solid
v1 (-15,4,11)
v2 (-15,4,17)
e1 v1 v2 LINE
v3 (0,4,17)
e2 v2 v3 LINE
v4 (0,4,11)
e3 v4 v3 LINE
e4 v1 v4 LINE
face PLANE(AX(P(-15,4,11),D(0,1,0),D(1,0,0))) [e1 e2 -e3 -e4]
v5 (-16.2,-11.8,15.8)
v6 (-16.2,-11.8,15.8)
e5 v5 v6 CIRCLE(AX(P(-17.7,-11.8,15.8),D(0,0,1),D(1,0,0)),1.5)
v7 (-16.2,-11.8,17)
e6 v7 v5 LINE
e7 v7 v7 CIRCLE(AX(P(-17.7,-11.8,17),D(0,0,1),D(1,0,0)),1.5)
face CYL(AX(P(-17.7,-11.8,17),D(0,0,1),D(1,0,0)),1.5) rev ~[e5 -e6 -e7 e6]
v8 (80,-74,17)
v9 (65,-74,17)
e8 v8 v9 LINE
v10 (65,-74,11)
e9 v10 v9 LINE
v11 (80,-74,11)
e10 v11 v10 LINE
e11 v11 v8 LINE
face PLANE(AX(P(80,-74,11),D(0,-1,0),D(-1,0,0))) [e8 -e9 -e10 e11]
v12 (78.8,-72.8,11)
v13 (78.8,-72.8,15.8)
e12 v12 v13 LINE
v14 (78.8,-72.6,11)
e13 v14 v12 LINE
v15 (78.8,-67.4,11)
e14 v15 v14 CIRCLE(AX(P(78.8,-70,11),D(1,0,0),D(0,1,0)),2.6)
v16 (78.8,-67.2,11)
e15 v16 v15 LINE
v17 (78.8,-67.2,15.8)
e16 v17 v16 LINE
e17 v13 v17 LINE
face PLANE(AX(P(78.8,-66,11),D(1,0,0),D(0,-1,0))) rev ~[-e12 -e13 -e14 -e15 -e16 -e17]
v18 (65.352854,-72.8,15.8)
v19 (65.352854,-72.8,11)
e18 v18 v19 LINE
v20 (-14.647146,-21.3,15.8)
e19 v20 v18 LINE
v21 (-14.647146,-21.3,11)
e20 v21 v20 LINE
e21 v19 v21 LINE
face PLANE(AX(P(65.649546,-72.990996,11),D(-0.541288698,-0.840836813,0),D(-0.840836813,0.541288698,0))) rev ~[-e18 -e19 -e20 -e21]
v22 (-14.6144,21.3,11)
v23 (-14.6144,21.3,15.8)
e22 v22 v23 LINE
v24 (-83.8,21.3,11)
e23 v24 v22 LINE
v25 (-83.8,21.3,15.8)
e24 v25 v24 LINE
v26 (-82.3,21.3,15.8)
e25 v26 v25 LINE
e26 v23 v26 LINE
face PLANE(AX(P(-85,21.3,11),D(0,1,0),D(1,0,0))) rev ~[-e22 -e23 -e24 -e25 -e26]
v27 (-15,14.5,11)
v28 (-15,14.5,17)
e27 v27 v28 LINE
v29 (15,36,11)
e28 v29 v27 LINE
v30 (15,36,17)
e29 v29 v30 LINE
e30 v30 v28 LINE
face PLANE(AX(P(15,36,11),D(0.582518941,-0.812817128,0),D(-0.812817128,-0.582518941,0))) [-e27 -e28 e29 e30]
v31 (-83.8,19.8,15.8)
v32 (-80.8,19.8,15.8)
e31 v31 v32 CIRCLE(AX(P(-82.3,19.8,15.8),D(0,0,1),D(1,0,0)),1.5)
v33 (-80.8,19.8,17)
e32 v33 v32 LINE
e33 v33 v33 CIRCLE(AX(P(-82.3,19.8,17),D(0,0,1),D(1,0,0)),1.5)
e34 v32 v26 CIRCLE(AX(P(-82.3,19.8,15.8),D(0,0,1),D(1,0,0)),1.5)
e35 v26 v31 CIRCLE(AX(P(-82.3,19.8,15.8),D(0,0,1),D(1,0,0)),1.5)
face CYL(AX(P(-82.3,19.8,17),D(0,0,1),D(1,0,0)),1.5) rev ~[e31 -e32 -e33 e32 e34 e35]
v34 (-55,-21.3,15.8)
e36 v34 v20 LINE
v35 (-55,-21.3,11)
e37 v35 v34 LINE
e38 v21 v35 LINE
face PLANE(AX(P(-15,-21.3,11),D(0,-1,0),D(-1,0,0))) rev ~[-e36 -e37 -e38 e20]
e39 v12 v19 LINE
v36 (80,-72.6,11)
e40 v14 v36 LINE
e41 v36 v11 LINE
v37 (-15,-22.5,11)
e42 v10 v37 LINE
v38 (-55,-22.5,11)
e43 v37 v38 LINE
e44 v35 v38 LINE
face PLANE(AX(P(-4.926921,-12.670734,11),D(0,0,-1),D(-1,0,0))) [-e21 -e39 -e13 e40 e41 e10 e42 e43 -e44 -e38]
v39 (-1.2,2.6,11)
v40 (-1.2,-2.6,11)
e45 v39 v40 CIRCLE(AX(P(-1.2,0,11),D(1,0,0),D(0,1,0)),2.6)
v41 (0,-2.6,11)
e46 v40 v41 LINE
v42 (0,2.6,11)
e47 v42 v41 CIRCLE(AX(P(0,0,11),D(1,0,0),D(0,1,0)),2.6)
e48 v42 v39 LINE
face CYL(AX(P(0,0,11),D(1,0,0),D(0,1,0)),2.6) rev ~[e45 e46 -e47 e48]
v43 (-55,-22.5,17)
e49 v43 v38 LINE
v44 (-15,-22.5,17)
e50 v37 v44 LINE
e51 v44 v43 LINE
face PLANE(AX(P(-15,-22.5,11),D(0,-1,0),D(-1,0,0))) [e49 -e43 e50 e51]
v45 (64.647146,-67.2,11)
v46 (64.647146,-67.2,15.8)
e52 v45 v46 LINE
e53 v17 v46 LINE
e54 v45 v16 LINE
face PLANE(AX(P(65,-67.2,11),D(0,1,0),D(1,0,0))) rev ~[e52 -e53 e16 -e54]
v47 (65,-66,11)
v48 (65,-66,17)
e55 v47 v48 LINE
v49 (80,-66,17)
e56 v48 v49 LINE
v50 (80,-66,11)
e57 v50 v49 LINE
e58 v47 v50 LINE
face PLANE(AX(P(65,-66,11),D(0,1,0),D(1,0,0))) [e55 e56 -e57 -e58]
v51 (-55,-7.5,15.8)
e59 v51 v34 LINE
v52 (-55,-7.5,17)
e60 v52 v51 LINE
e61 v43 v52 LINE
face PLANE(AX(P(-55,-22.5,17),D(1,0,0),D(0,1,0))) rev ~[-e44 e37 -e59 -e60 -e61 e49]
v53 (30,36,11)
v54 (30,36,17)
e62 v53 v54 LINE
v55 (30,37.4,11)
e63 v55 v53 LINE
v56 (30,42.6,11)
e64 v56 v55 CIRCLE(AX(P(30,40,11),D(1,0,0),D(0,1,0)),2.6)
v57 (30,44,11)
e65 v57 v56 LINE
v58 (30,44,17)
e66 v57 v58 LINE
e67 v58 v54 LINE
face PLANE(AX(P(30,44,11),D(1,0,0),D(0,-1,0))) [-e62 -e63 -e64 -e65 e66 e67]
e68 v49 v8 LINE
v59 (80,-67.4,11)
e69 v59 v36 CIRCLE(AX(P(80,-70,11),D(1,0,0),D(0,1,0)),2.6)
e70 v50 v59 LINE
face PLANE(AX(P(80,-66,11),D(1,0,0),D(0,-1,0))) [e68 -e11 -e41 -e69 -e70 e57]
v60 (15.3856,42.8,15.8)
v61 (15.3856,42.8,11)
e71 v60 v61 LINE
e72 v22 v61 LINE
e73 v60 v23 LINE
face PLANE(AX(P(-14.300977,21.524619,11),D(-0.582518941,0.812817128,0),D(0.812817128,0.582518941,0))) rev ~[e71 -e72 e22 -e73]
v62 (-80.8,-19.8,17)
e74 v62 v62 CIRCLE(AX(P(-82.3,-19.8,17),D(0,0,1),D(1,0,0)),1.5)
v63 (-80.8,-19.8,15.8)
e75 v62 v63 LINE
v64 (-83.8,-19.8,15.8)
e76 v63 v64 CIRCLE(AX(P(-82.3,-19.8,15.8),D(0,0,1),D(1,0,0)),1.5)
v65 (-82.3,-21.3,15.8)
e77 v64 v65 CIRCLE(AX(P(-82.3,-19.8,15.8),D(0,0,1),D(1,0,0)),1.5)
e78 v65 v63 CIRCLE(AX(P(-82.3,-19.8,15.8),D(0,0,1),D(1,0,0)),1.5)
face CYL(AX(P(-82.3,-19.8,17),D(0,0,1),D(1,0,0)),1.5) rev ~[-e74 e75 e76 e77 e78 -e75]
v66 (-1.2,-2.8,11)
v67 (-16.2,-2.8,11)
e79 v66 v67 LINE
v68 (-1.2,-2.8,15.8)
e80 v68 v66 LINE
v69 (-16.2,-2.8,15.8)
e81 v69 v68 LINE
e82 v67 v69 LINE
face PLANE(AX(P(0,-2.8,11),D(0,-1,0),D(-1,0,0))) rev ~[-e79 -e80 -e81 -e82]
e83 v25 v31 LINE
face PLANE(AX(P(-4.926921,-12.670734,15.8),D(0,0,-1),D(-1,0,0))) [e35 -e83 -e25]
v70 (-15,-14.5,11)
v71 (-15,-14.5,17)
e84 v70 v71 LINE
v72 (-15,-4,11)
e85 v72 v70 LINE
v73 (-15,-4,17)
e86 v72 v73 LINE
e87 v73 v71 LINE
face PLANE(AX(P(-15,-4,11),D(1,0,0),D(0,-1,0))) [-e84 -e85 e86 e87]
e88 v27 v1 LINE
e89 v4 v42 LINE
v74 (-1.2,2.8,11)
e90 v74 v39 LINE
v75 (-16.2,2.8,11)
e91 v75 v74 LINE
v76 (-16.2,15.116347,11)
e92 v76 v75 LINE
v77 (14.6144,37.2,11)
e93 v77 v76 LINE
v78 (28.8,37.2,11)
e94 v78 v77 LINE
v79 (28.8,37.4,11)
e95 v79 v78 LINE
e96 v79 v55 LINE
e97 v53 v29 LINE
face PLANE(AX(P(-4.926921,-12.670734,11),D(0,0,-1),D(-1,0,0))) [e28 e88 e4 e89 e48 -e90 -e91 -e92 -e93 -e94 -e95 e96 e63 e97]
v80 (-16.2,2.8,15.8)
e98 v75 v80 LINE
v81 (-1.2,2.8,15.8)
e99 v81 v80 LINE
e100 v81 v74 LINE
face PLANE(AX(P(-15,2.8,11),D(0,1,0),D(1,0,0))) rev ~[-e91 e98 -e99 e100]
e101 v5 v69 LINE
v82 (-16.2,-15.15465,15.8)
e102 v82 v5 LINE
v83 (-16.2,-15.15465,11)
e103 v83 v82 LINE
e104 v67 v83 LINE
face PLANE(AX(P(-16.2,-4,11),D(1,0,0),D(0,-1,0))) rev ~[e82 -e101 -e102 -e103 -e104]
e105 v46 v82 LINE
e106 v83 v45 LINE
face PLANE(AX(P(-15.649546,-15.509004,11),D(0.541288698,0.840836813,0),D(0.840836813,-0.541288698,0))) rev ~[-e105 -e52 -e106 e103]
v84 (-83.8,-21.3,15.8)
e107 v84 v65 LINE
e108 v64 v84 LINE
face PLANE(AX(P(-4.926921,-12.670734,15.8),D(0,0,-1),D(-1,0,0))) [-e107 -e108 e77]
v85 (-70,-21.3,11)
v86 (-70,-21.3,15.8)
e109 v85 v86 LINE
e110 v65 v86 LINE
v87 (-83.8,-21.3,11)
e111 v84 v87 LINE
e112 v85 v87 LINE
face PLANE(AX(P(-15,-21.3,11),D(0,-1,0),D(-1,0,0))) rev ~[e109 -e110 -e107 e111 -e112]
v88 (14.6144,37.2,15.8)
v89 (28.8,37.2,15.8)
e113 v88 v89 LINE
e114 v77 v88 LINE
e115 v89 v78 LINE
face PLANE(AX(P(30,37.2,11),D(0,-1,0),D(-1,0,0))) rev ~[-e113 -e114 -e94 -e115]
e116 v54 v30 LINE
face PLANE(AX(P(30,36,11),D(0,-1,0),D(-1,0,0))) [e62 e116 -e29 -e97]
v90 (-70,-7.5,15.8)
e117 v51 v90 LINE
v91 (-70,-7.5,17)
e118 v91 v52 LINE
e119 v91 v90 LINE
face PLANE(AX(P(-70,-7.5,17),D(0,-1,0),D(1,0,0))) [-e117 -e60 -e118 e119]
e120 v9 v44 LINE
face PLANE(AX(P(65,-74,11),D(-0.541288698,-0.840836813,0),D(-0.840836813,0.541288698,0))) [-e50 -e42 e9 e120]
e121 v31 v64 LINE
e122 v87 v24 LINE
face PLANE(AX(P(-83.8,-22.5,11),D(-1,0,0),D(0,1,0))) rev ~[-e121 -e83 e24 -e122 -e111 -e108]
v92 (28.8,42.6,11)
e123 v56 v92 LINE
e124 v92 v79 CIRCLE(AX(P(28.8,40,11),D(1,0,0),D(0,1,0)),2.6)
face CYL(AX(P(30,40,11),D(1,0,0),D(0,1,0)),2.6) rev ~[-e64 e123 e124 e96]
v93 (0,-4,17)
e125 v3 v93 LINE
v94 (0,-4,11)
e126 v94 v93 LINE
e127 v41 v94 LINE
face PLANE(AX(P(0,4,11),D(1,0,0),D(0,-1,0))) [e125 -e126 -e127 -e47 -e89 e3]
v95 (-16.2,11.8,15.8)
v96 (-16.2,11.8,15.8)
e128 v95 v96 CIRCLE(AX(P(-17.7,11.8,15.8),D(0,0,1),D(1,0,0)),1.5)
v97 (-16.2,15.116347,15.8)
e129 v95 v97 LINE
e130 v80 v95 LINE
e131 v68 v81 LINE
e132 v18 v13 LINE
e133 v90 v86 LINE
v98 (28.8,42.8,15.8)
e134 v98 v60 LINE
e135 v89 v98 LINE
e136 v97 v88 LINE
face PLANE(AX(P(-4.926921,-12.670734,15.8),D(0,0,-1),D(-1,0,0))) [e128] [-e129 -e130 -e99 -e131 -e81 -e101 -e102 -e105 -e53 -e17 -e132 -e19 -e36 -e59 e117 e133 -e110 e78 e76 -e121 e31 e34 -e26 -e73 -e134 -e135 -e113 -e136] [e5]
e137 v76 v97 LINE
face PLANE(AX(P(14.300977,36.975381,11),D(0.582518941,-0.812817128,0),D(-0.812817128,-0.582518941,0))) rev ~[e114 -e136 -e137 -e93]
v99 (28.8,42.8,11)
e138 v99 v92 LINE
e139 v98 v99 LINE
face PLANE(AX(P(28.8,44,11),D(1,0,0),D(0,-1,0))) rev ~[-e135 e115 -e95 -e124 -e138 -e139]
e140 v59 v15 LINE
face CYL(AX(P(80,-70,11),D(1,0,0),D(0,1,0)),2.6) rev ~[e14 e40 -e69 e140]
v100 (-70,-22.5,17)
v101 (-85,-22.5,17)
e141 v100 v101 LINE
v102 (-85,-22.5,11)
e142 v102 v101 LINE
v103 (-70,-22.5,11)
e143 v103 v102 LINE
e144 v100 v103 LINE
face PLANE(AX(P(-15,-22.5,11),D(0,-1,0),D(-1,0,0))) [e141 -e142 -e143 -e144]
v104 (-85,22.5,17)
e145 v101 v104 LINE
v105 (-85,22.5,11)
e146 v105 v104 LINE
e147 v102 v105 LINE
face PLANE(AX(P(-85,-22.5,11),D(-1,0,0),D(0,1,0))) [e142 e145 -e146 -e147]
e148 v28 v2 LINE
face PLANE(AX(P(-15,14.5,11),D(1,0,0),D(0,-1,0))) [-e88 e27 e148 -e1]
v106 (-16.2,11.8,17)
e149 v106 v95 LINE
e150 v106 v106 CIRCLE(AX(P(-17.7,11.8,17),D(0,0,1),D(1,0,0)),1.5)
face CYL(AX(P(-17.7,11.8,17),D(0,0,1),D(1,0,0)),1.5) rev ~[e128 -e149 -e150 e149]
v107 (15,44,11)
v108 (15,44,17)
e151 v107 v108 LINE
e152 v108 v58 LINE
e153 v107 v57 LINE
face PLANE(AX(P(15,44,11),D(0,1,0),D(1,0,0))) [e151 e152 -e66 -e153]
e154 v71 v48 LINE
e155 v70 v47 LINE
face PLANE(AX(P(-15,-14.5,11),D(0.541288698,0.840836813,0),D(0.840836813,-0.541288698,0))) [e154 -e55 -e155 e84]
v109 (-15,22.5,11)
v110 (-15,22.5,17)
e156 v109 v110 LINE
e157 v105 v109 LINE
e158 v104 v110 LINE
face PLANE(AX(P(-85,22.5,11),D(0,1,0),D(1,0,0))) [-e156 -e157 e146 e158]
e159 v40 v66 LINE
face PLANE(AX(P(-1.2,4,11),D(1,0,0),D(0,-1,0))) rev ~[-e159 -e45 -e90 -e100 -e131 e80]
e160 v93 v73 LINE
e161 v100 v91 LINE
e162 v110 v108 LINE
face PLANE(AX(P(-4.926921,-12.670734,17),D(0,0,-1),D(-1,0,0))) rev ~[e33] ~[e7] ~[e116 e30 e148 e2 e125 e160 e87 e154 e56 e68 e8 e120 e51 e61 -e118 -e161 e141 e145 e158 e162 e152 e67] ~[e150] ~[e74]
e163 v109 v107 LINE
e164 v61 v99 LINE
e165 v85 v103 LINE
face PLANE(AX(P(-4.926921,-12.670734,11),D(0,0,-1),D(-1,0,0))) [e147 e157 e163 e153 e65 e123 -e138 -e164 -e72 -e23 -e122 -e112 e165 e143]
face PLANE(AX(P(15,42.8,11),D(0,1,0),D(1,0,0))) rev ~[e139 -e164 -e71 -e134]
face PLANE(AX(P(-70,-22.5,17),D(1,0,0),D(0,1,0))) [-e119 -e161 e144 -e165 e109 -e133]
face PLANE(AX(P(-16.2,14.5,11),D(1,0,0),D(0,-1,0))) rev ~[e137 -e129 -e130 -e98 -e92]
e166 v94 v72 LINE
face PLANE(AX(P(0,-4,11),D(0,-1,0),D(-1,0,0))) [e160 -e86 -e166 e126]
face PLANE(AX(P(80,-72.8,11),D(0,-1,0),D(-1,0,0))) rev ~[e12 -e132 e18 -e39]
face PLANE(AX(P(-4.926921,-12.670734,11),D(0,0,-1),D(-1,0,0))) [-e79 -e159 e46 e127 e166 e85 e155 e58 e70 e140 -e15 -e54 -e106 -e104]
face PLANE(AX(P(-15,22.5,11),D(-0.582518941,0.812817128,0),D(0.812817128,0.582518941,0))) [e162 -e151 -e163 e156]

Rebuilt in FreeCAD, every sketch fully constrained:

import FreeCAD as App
import Part
import Sketcher

V = App.Vector
Q = App.Units.Quantity


def faces_at(feature, points):
    """Names of the faces that lie closest to the given points."""
    faces = feature.Shape.Faces
    near = lambda p: min(range(len(faces)), key=lambda i: faces[i].distToShape(Part.Vertex(*p))[0])
    return sorted({f"Face{near(p) + 1}" for p in points})

doc = App.newDocument("Part")
body = doc.addObject("PartDesign::Body", "Body")

# Sketch on XY plane
sketch1 = body.newObject("Sketcher::SketchObject", "Sketch")
sketch1.AttachmentSupport = (doc.getObject("XY_Plane"), [""])
sketch1.MapMode = "FlatFace"
sketch1.addGeometry([
    Part.LineSegment(V(65, -74, 0), V(80, -74, 0)),  # 0
    Part.LineSegment(V(80, -74, 0), V(80, -66, 0)),  # 1
    Part.LineSegment(V(80, -66, 0), V(65, -66, 0)),  # 2
    Part.LineSegment(V(65, -66, 0), V(-15, -14.5, 0)),  # 3
    Part.LineSegment(V(-15, -14.5, 0), V(-15, -4, 0)),  # 4
    Part.LineSegment(V(-15, -4, 0), V(0, -4, 0)),  # 5
    Part.LineSegment(V(0, -4, 0), V(0, 4, 0)),  # 6
    Part.LineSegment(V(0, 4, 0), V(-15, 4, 0)),  # 7
    Part.LineSegment(V(-15, 4, 0), V(-15, 14.5, 0)),  # 8
    Part.LineSegment(V(-15, 14.5, 0), V(15, 36, 0)),  # 9
    Part.LineSegment(V(15, 36, 0), V(30, 36, 0)),  # 10
    Part.LineSegment(V(30, 36, 0), V(30, 44, 0)),  # 11
    Part.LineSegment(V(30, 44, 0), V(15, 44, 0)),  # 12
    Part.LineSegment(V(15, 44, 0), V(-15, 22.5, 0)),  # 13
    Part.LineSegment(V(-15, 22.5, 0), V(-85, 22.5, 0)),  # 14
    Part.LineSegment(V(-85, 22.5, 0), V(-85, -22.5, 0)),  # 15
    Part.LineSegment(V(-85, -22.5, 0), V(-15, -22.5, 0)),  # 16
    Part.LineSegment(V(-15, -22.5, 0), V(65, -74, 0)),  # 17
], False)
sketch1.addConstraint([
    Sketcher.Constraint("Coincident", 0, 2, 1, 1),
    Sketcher.Constraint("Coincident", 1, 2, 2, 1),
    Sketcher.Constraint("Coincident", 2, 2, 3, 1),
    Sketcher.Constraint("Coincident", 3, 2, 4, 1),
    Sketcher.Constraint("Coincident", 4, 2, 5, 1),
    Sketcher.Constraint("Coincident", 5, 2, 6, 1),
    Sketcher.Constraint("Coincident", 6, 2, 7, 1),
    Sketcher.Constraint("Coincident", 7, 2, 8, 1),
    Sketcher.Constraint("Coincident", 8, 2, 9, 1),
    Sketcher.Constraint("Coincident", 9, 2, 10, 1),
    Sketcher.Constraint("Coincident", 10, 2, 11, 1),
    Sketcher.Constraint("Coincident", 11, 2, 12, 1),
    Sketcher.Constraint("Coincident", 12, 2, 13, 1),
    Sketcher.Constraint("Coincident", 13, 2, 14, 1),
    Sketcher.Constraint("Coincident", 14, 2, 15, 1),
    Sketcher.Constraint("Coincident", 15, 2, 16, 1),
    Sketcher.Constraint("Coincident", 16, 2, 17, 1),
    Sketcher.Constraint("Coincident", 17, 2, 0, 1),
    Sketcher.Constraint("Horizontal", 0),
    Sketcher.Constraint("Vertical", 1),
    Sketcher.Constraint("Horizontal", 2),
    Sketcher.Constraint("Vertical", 4),
    Sketcher.Constraint("Horizontal", 5),
    Sketcher.Constraint("Vertical", 6),
    Sketcher.Constraint("Horizontal", 7),
    Sketcher.Constraint("Vertical", 8),
    Sketcher.Constraint("Horizontal", 10),
    Sketcher.Constraint("Vertical", 11),
    Sketcher.Constraint("Horizontal", 12),
    Sketcher.Constraint("Horizontal", 14),
    Sketcher.Constraint("Vertical", 15),
    Sketcher.Constraint("Horizontal", 16),
    Sketcher.Constraint("Symmetric", 5, 2, 6, 2, -1, 1),
    Sketcher.Constraint("Symmetric", 3, 2, 8, 2, -1),
    Sketcher.Constraint("Symmetric", 13, 2, 16, 2, -1),
    Sketcher.Constraint("Parallel", 9, 13),
    Sketcher.Constraint("Parallel", 3, 17),
    Sketcher.Constraint("Vertical", 9, 2, 12, 2),
    Sketcher.Constraint("Vertical", 8, 2, 13, 2),
    Sketcher.Constraint("Vertical", 2, 2, 17, 2),
    Sketcher.Constraint("Equal", 2, 5),
    Sketcher.Constraint("Equal", 7, 10),
    Sketcher.Constraint("Equal", 1, 6),
    Sketcher.Constraint("DistanceX", 0, 1, 0, 2, Q("15 mm")),
    Sketcher.Constraint("DistanceX", 14, 2, 14, 1, Q("70 mm")),
    Sketcher.Constraint("DistanceY", 1, 1, 1, 2, Q("8 mm")),
    Sketcher.Constraint("DistanceY", 15, 2, 15, 1, Q("45 mm")),
    Sketcher.Constraint("DistanceX", -1, 1, 0, 2, Q("80 mm")),
    Sketcher.Constraint("DistanceY", 0, 2, -1, 1, Q("74 mm")),
    Sketcher.Constraint("DistanceX", -1, 1, 9, 2, Q("15 mm")),
    Sketcher.Constraint("DistanceY", -1, 1, 9, 2, Q("36 mm")),
])
pad1 = body.newObject("PartDesign::Pad", "Pad")
pad1.Profile = sketch1
pad1.Length = 6
doc.recompute()

thickness = body.newObject("PartDesign::Thickness", "Thickness")
thickness.Base = (pad1, faces_at(pad1, [(-68.5, -15, 0)]))
thickness.Value = 1.2
thickness.Reversed = True
thickness.Join = "Intersection"

# Sketch on XY plane
sketch2 = body.newObject("Sketcher::SketchObject", "Sketch001")
sketch2.AttachmentSupport = (doc.getObject("XY_Plane"), [""])
sketch2.MapMode = "FlatFace"
sketch2.AttachmentOffset = App.Placement(V(0, 0, 6), App.Rotation())
sketch2.addGeometry([
    Part.Circle(V(-82.3, 19.8, 0), V(0, 0, 1), 1.5),
    Part.Circle(V(-82.3, -19.8, 0), V(0, 0, 1), 1.5),
    Part.Circle(V(-17.7, 11.8, 0), V(0, 0, 1), 1.5),
    Part.Circle(V(-17.7, -11.8, 0), V(0, 0, 1), 1.5),
], False)
sketch2.addConstraint([
    Sketcher.Constraint("Equal", 0, 1),
    Sketcher.Constraint("Equal", 1, 2),
    Sketcher.Constraint("Equal", 2, 3),
    Sketcher.Constraint("Symmetric", 0, 3, 1, 3, -1),
    Sketcher.Constraint("Symmetric", 2, 3, 3, 3, -1),
    Sketcher.Constraint("Diameter", 0, Q("3 mm")),
    Sketcher.Constraint("DistanceY", 2, 3, 0, 3, Q("8 mm")),
    Sketcher.Constraint("DistanceX", 0, 3, -1, 1, Q("82.3 mm")),
    Sketcher.Constraint("DistanceY", -1, 1, 0, 3, Q("19.8 mm")),
    Sketcher.Constraint("DistanceX", 2, 3, -1, 1, Q("17.7 mm")),
])
pocket1 = body.newObject("PartDesign::Pocket", "Pocket")
pocket1.Profile = sketch2
pocket1.Length = 1.2

# Sketch on XY plane
sketch3 = body.newObject("Sketcher::SketchObject", "Sketch002")
sketch3.AttachmentSupport = (doc.getObject("XY_Plane"), [""])
sketch3.MapMode = "FlatFace"
sketch3.AttachmentOffset = App.Placement(V(0, 0, 6), App.Rotation())
sketch3.addGeometry([
    Part.LineSegment(V(-70, -7.5, 0), V(-70, -22.5, 0)),
    Part.LineSegment(V(-70, -22.5, 0), V(-55, -22.5, 0)),
    Part.LineSegment(V(-55, -22.5, 0), V(-55, -7.5, 0)),
    Part.LineSegment(V(-55, -7.5, 0), V(-70, -7.5, 0)),
], False)
sketch3.addConstraint([
    Sketcher.Constraint("Coincident", 0, 2, 1, 1),
    Sketcher.Constraint("Coincident", 1, 2, 2, 1),
    Sketcher.Constraint("Coincident", 2, 2, 3, 1),
    Sketcher.Constraint("Coincident", 3, 2, 0, 1),
    Sketcher.Constraint("Vertical", 0),
    Sketcher.Constraint("Horizontal", 1),
    Sketcher.Constraint("Vertical", 2),
    Sketcher.Constraint("Horizontal", 3),
    Sketcher.Constraint("Equal", 3, 0),
    Sketcher.Constraint("DistanceX", 1, 1, 1, 2, Q("15 mm")),
    Sketcher.Constraint("DistanceX", 0, 2, -1, 1, Q("70 mm")),
    Sketcher.Constraint("DistanceY", 0, 2, -1, 1, Q("22.5 mm")),
])
pocket2 = body.newObject("PartDesign::Pocket", "Pocket001")
pocket2.Profile = sketch3
pocket2.Type = "ThroughAll"

# Sketch on YZ plane
sketch4 = body.newObject("Sketcher::SketchObject", "Sketch003")
sketch4.AttachmentSupport = (doc.getObject("YZ_Plane"), [""])
sketch4.MapMode = "FlatFace"
sketch4.AttachmentOffset = App.Placement(V(0, 0, 30), App.Rotation())
sketch4.addGeometry(Part.Circle(V(40, 0, 0), V(0, 0, 1), 2.6), False)
sketch4.addConstraint([
    Sketcher.Constraint("PointOnObject", 0, 3, -1),
    Sketcher.Constraint("Diameter", 0, Q("5.2 mm")),
    Sketcher.Constraint("DistanceX", -1, 1, 0, 3, Q("40 mm")),
])
pocket3 = body.newObject("PartDesign::Pocket", "Pocket002")
pocket3.Profile = sketch4
pocket3.Length = 1.2

# Sketch on YZ plane
sketch5 = body.newObject("Sketcher::SketchObject", "Sketch004")
sketch5.AttachmentSupport = (doc.getObject("YZ_Plane"), [""])
sketch5.MapMode = "FlatFace"
sketch5.addGeometry(Part.Circle(V(0, 0, 0), V(0, 0, 1), 2.6), False)
sketch5.addConstraint([
    Sketcher.Constraint("Coincident", 0, 3, -1, 1),
    Sketcher.Constraint("Diameter", 0, Q("5.2 mm")),
])
pocket4 = body.newObject("PartDesign::Pocket", "Pocket003")
pocket4.Profile = sketch5
pocket4.Length = 1.2

# Sketch on YZ plane
sketch6 = body.newObject("Sketcher::SketchObject", "Sketch005")
sketch6.AttachmentSupport = (doc.getObject("YZ_Plane"), [""])
sketch6.MapMode = "FlatFace"
sketch6.AttachmentOffset = App.Placement(V(0, 0, 80), App.Rotation())
sketch6.addGeometry(Part.Circle(V(-70, 0, 0), V(0, 0, 1), 2.6), False)
sketch6.addConstraint([
    Sketcher.Constraint("PointOnObject", 0, 3, -1),
    Sketcher.Constraint("Diameter", 0, Q("5.2 mm")),
    Sketcher.Constraint("DistanceX", 0, 3, -1, 1, Q("70 mm")),
])
pocket5 = body.newObject("PartDesign::Pocket", "Pocket004")
pocket5.Profile = sketch6
pocket5.Length = 1.2
body2 = doc.addObject("PartDesign::Body", "Body001")
doc.recompute()

body.Placement = App.Placement(V(0, 0, 11), App.Rotation(V(0, 0, 1), 0))
boolean = body2.newObject("PartDesign::Boolean", "Boolean")
boolean.Type = "Fuse"
boolean.addObjects([body])

doc.recompute()
